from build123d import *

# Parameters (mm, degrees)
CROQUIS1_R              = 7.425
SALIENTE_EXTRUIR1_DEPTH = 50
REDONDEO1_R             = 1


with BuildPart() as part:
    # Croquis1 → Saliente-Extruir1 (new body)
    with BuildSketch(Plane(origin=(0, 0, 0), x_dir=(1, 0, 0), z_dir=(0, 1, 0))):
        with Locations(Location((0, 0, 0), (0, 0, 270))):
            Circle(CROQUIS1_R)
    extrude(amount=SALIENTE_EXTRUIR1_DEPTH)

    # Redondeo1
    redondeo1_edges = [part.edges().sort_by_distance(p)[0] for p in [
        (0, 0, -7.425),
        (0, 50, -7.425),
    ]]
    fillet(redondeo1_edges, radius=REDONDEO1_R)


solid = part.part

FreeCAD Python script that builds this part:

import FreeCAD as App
import Part
import Sketcher

V = App.Vector
Q = App.Units.Quantity


def edges_at(feature, points):
    """Names of the edges that pass closest to the given points."""
    edges = feature.Shape.Edges
    near = lambda p: min(range(len(edges)), key=lambda i: edges[i].distToShape(Part.Vertex(*p))[0])
    return sorted({f"Edge{near(p) + 1}" for p in points})

doc = App.newDocument("Part")
body = doc.addObject("PartDesign::Body", "Body")

sketch1 = body.newObject("Sketcher::SketchObject", "Sketch")
sketch1.AttachmentSupport = (doc.getObject("XZ_Plane"), [""])
sketch1.MapMode = "FlatFace"
sketch1.addGeometry(Part.Circle(V(0, 0, 0), V(0, 0, 1), 7.425), False)
sketch1.addConstraint(Sketcher.Constraint("Coincident", 0, 3, -1, 1))
sketch1.addConstraint(Sketcher.Constraint("Diameter", 0, Q("14.85 mm")))
pad1 = body.newObject("PartDesign::Pad", "Pad")
pad1.Profile = sketch1
pad1.Length = 50
pad1.Reversed = True
doc.recompute()

fillet = body.newObject("PartDesign::Fillet", "Fillet")
fillet.Base = (pad1, edges_at(pad1, [(0, 0, -7.425), (0, 50, -7.425)]))
fillet.Radius = 1

doc.recompute()
